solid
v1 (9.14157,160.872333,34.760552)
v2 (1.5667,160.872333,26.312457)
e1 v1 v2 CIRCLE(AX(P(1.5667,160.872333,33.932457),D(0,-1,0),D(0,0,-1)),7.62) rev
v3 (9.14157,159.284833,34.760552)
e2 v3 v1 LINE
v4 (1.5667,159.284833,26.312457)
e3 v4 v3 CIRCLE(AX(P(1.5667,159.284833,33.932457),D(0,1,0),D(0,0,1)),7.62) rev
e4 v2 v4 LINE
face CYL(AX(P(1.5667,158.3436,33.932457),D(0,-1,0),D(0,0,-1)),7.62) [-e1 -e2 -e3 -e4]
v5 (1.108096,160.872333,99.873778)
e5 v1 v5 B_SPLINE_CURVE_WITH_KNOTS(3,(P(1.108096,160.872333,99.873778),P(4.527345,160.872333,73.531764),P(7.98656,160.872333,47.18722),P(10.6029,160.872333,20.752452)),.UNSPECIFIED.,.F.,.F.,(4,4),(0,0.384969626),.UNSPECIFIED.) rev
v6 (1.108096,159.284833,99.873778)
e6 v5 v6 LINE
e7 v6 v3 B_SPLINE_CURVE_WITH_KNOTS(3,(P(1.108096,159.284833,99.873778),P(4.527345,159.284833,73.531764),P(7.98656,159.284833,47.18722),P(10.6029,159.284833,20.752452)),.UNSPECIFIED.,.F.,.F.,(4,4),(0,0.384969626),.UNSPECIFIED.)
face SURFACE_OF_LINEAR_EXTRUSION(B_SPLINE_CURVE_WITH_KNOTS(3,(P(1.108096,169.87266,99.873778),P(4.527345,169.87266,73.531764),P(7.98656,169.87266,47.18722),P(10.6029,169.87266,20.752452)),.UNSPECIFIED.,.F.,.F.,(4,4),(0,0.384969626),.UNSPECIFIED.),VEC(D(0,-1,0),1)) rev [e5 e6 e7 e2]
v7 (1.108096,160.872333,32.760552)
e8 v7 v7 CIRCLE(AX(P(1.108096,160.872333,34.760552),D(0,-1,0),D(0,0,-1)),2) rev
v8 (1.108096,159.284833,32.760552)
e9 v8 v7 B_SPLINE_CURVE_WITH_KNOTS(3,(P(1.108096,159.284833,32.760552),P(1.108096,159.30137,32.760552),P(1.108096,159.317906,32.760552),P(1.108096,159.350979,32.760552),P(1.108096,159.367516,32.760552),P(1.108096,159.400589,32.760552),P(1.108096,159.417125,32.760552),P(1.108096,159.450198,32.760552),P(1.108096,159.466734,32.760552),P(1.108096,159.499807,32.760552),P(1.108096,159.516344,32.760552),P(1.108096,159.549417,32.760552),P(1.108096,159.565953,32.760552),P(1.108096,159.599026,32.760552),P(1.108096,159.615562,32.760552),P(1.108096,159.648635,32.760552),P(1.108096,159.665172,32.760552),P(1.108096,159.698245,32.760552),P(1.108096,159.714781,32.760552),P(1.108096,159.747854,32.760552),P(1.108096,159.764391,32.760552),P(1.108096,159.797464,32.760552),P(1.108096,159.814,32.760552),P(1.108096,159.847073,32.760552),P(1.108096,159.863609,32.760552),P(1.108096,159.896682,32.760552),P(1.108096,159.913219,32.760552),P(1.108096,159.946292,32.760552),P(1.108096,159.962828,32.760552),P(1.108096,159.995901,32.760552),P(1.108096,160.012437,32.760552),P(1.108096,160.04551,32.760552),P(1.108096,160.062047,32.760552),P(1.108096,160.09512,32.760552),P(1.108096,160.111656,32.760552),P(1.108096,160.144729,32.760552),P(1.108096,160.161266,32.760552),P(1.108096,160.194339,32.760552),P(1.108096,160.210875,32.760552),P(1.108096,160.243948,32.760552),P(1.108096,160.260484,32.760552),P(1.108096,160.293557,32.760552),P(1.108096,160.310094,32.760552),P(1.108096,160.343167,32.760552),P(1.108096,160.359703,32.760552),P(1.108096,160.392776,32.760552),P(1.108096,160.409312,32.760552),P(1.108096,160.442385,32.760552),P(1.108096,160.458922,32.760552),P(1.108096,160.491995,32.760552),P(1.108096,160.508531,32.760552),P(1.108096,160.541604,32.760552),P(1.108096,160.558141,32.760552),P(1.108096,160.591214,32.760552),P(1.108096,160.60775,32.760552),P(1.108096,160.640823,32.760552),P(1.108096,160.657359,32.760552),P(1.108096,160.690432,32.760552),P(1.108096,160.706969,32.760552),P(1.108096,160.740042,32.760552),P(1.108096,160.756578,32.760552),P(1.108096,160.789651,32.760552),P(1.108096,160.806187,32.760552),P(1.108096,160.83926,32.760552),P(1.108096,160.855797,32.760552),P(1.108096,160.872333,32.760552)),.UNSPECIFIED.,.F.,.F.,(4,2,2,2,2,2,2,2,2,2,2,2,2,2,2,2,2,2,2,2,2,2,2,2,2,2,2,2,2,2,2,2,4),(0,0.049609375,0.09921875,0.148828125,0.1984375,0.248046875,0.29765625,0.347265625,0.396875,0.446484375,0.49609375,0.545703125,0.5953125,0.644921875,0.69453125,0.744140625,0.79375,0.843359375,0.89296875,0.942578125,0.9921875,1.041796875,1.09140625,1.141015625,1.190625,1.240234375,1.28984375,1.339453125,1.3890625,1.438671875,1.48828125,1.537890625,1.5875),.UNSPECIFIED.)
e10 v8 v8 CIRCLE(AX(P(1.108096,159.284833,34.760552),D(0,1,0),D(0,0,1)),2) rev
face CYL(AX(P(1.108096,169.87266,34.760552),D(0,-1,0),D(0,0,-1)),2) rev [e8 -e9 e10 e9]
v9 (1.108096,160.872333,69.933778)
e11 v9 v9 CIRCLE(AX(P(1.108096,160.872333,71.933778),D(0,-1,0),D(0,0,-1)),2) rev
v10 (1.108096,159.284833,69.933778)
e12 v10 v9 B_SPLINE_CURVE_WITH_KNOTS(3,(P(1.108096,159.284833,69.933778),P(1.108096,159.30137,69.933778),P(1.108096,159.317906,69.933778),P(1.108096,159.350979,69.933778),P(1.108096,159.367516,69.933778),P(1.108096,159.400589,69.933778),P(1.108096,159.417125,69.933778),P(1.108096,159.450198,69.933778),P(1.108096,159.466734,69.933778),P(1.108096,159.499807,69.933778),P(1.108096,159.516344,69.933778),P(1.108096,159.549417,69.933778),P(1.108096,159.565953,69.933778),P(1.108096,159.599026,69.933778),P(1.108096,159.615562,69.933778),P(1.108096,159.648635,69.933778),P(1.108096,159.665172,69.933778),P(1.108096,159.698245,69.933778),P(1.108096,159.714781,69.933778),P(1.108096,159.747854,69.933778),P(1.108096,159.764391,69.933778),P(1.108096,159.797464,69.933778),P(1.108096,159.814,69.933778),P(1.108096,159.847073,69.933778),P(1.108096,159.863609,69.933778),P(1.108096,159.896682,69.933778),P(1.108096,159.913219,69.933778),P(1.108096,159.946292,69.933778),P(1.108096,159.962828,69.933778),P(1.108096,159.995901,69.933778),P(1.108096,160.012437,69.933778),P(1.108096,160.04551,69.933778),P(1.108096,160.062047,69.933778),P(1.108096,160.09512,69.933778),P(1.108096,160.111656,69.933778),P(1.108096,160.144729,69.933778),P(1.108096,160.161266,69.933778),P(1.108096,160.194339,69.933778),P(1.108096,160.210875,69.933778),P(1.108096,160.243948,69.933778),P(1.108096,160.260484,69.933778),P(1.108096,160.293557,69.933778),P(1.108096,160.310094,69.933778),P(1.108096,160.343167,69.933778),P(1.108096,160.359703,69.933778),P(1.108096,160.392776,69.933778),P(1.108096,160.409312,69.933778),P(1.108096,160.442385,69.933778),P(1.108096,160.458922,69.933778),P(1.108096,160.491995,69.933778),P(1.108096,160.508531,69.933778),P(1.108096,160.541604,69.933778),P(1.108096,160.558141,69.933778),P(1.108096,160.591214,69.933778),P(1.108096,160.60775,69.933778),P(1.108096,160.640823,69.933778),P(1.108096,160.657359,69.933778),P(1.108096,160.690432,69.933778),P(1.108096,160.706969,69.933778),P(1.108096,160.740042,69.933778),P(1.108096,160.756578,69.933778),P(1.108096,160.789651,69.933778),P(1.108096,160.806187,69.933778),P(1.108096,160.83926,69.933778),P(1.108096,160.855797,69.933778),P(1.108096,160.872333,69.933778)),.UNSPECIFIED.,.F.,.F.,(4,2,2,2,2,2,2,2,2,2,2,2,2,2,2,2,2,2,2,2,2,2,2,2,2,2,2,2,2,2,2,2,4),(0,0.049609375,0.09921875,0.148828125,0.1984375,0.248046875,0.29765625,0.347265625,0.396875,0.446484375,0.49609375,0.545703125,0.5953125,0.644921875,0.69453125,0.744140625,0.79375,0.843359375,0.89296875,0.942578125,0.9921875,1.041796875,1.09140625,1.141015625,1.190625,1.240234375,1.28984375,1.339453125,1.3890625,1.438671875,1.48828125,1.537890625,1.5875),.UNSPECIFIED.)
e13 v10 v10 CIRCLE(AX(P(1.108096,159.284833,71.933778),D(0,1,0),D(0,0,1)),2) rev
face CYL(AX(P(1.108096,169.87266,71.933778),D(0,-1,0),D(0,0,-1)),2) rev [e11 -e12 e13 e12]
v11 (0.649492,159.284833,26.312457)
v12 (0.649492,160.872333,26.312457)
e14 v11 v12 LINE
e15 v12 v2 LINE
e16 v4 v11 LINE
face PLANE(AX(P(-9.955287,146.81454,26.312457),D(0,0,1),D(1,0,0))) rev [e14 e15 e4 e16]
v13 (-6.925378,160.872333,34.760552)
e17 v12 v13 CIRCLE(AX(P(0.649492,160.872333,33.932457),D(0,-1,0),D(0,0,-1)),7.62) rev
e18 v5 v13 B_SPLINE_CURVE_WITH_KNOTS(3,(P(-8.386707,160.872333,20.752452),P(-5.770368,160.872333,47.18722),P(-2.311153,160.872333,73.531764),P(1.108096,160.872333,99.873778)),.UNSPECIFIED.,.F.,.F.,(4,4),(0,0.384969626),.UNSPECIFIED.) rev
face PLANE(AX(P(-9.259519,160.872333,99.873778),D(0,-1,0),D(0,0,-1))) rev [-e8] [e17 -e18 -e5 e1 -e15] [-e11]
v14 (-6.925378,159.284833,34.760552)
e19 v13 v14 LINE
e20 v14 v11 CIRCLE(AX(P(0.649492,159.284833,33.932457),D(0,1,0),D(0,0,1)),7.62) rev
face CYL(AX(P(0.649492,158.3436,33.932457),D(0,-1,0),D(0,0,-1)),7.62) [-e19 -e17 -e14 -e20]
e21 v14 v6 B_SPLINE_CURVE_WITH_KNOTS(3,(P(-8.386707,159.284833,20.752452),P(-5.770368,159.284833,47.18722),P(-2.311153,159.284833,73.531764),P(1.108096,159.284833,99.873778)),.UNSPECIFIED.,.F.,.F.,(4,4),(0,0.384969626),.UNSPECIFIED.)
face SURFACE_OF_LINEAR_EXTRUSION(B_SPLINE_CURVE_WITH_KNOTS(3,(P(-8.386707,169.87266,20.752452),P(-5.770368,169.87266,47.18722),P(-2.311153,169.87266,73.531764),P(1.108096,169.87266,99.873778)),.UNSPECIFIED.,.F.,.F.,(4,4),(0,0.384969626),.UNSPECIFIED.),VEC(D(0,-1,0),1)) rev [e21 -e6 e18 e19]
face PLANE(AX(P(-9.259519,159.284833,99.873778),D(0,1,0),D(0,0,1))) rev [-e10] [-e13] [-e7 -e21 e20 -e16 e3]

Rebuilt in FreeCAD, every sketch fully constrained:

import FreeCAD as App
import Part
import Sketcher
from FreeCAD import Vector
Q = App.Units.Quantity


def edges_at(feature, points):
    """Names of the edges that pass closest to the given points."""
    edges = feature.Shape.Edges
    near = lambda p: min(range(len(edges)), key=lambda i: edges[i].distToShape(Part.Vertex(*p))[0])
    return sorted({f"Edge{near(p) + 1}" for p in points})


def add_polygon(sketch, points):
    """Adds a closed chain of lines whose ends are joined by coincident constraints."""
    first, n = sketch.GeometryCount, len(points)
    for a, b in zip(points, points[1:] + points[:1]):
        sketch.addGeometry(Part.LineSegment(App.Vector(*a, 0), App.Vector(*b, 0)), False)
    for i in range(n):
        sketch.addConstraint(Sketcher.Constraint("Coincident", first + i, 2, first + (i + 1) % n, 1))

doc = App.newDocument("Part")
params = doc.addObject("Spreadsheet::Sheet", "Params")
for row, (alias, value) in enumerate([
    ("sketch1_diameter", "0.15625 in"),
    ("pad1_length", "6.6879 in"),
    ("pocket1_length", "0.9078 in"),
    ("pocket2_length", "0.9078 in"),
    ("fillet_radius", "0.3 in"),
], start=1):
    params.set(f"A{row}", alias)
    params.set(f"B{row}", "=" + value)
    params.setAlias(f"B{row}", alias)

body = doc.addObject("PartDesign::Body", "Body")

# Sketch on XZ plane
sketch1 = doc.addObject("Sketcher::SketchObject", "Sketch")
body.addObject(sketch1)
sketch1.AttachmentSupport = (doc.XZ_Plane, [""])
sketch1.MapMode = "FlatFace"
sketch1.addGeometry([
    Part.LineSegment(Vector(12.17148, 3.607452, 0), Vector(-9.955287, 3.607452, 0)),  # 0
    Part.BSplineCurve([Vector(-8.386707, 20.752452, 0), Vector(-8.883777, 15.730202, 0), Vector(-9.414371, 10.016003, 0), Vector(-9.897806, 4.296817, 0), Vector(-9.955287, 3.607452, 0)], [4, 1, 4], [0.384969626, 0.458108671, 0.468131593], False, 3, [1, 1, 1, 1, 1], False),  # 1
    Part.BSplineCurve([Vector(1.108096, 99.873778, 0), Vector(-2.311153, 73.531764, 0), Vector(-5.770368, 47.18722, 0), Vector(-8.386707, 20.752452, 0)], [4, 4], [0, 0.384969626], False, 3, [1, 1, 1, 1], False),  # 2
    Part.BSplineCurve([Vector(1.108096, 99.873778, 0), Vector(4.527345, 73.531764, 0), Vector(7.98656, 47.18722, 0), Vector(10.6029, 20.752452, 0)], [4, 4], [0, 0.384969626], False, 3, [1, 1, 1, 1], False),  # 3
    Part.BSplineCurve([Vector(10.6029, 20.752452, 0), Vector(11.099969, 15.730202, 0), Vector(11.630564, 10.016003, 0), Vector(12.113998, 4.296817, 0), Vector(12.17148, 3.607452, 0)], [4, 1, 4], [0.384969626, 0.458108671, 0.468131593], False, 3, [1, 1, 1, 1, 1], False),  # 4
    Part.Circle(Vector(1.108109, 11.326457, 0), Vector(0, 0, 1), 1.984375),  # 5
], False)
sketch1.addConstraint([
    Sketcher.Constraint("Block", 1),
    Sketcher.Constraint("Block", 2),
    Sketcher.Constraint("Block", 3),
    Sketcher.Constraint("Block", 4),
    Sketcher.Constraint("Coincident", 0, 2, 1, 2),
    Sketcher.Constraint("Coincident", 4, 2, 0, 1),
    Sketcher.Constraint("Diameter", 5, Q("0.15625 in")),
    Sketcher.Constraint("DistanceX", -1, 1, 5, 3, 1.108109),
    Sketcher.Constraint("DistanceY", -1, 1, 5, 3, 11.326457),
])
sketch1.setExpression("Constraints[6]", "Params.sketch1_diameter")
pad1 = doc.addObject("PartDesign::Pad", "Pad")
body.addObject(pad1)
pad1.Profile = sketch1
pad1.setExpression("Length", "Params.pad1_length")
pad1.Reversed = True

# Sketch on XZ plane
sketch2 = doc.addObject("Sketcher::SketchObject", "Sketch001")
body.addObject(sketch2)
sketch2.AttachmentSupport = (doc.XZ_Plane, [""])
sketch2.MapMode = "FlatFace"
sketch2.AttachmentOffset = App.Placement(Vector(0, 0, -6.6879 * 25.4), App.Rotation())
add_polygon(sketch2, [(-10, 4), (-10, 26), (26, 26), (26, 4)])  # lines 0-3
sketch2.addConstraint([
    Sketcher.Constraint("Vertical", 0),
    Sketcher.Constraint("Horizontal", 1),
    Sketcher.Constraint("Vertical", 2),
    Sketcher.Constraint("Horizontal", 3),
    Sketcher.Constraint("DistanceX", 1, 1, 1, 2, 35.763807),
    Sketcher.Constraint("DistanceY", 0, 1, 0, 2, 22.705005),
    Sketcher.Constraint("DistanceX", -1, 1, 1, 2, 25.80852),
    Sketcher.Constraint("DistanceY", -1, 1, 2, 2, 3.607452),
])
pocket1 = doc.addObject("PartDesign::Pocket", "Pocket")
body.addObject(pocket1)
pocket1.Profile = sketch2
pocket1.setExpression("Length", "Params.pocket1_length")
pocket1.Reversed = True

# Sketch on XZ plane
sketch3 = doc.addObject("Sketcher::SketchObject", "Sketch002")
body.addObject(sketch3)
sketch3.AttachmentSupport = (doc.XZ_Plane, [""])
sketch3.MapMode = "FlatFace"
add_polygon(sketch3, [(-10, 4), (-10, 26), (26, 26), (26, 4)])  # lines 0-3
sketch3.addConstraint([
    Sketcher.Constraint("Vertical", 0),
    Sketcher.Constraint("Horizontal", 1),
    Sketcher.Constraint("Vertical", 2),
    Sketcher.Constraint("Horizontal", 3),
    Sketcher.Constraint("DistanceX", 1, 1, 1, 2, 35.763807),
    Sketcher.Constraint("DistanceY", 0, 1, 0, 2, 22.705005),
    Sketcher.Constraint("DistanceX", -1, 1, 1, 2, 25.80852),
    Sketcher.Constraint("DistanceY", -1, 1, 2, 2, 3.607452),
])
pocket2 = doc.addObject("PartDesign::Pocket", "Pocket001")
body.addObject(pocket2)
pocket2.Profile = sketch3
pocket2.setExpression("Length", "Params.pocket2_length")
doc.recompute()

fillet = doc.addObject("PartDesign::Fillet", "Fillet")
body.addObject(fillet)
fillet.Base = (pocket2, edges_at(pocket2, [
    (-7.824, 11.529, 26.312),
    (10.04, 11.529, 26.312),
    (-9.955, 84.936, 3.607),
    (12.171, 84.936, 3.607),
    (-7.824, 158.344, 26.312),
    (10.04, 158.344, 26.312),
]))
fillet.setExpression("Radius", "Params.fillet_radius")

# Sketch on XZ plane
sketch4 = doc.addObject("Sketcher::SketchObject", "Sketch003")
body.addObject(sketch4)
sketch4.AttachmentSupport = (doc.XZ_Plane, [""])
sketch4.MapMode = "FlatFace"
sketch4.addGeometry([
    Part.Circle(Vector(1.1, 71.9, 0), Vector(0, 0, 1), 2),
    Part.Circle(Vector(1.1, 34.8, 0), Vector(0, 0, 1), 2),
], False)
sketch4.addConstraint([
    Sketcher.Constraint("Equal", 0, 1),
    Sketcher.Constraint("Vertical", 0, 3, 1, 3),
    Sketcher.Constraint("Diameter", 0, 4.0),
    Sketcher.Constraint("DistanceY", -1, 1, 0, 3, 71.933778),
    Sketcher.Constraint("DistanceX", -1, 1, 0, 3, 1.108096),
    Sketcher.Constraint("DistanceY", -1, 1, 1, 3, 34.760552),
])
pocket3 = doc.addObject("PartDesign::Pocket", "Pocket002")
body.addObject(pocket3)
pocket3.Profile = sketch4
pocket3.Type = "ThroughAll"
pocket3.Midplane = True

# Sketch on YZ plane
sketch5 = doc.addObject("Sketcher::SketchObject", "Sketch004")
body.addObject(sketch5)
sketch5.AttachmentSupport = (doc.YZ_Plane, [""])
sketch5.MapMode = "FlatFace"
add_polygon(sketch5, [(159, 100), (0, 100), (0, 4), (159, 4)])  # lines 0-3
add_polygon(sketch5, [(170, 100), (161, 100), (161, 4), (170, 4)])  # lines 4-7
sketch5.addConstraint([
    Sketcher.Constraint("Horizontal", 0),
    Sketcher.Constraint("Vertical", 1),
    Sketcher.Constraint("Horizontal", 2),
    Sketcher.Constraint("Vertical", 3),
    Sketcher.Constraint("Horizontal", 4),
    Sketcher.Constraint("Vertical", 5),
    Sketcher.Constraint("Horizontal", 6),
    Sketcher.Constraint("Vertical", 7),
    Sketcher.Constraint("PointOnObject", 0, 2, -2),
    Sketcher.Constraint("Horizontal", 3, 2, 4, 2),
    Sketcher.Constraint("Horizontal", 2, 2, 5, 2),
    Sketcher.Constraint("DistanceX", 3, 2, 4, 2, Q("0.0625 in")),
    Sketcher.Constraint("DistanceX", -1, 1, 6, 2, Q("6.6879 in")),
    Sketcher.Constraint("DistanceX", 0, 2, 0, 1, 159.284833),
    Sketcher.Constraint("DistanceY", 1, 2, 1, 1, 96.266327),
    Sketcher.Constraint("DistanceY", -1, 1, 0, 2, 99.873778),
])
pocket4 = doc.addObject("PartDesign::Pocket", "Pocket003")
body.addObject(pocket4)
pocket4.Profile = sketch5
pocket4.Type = "ThroughAll"
pocket4.Midplane = True

doc.recompute()
